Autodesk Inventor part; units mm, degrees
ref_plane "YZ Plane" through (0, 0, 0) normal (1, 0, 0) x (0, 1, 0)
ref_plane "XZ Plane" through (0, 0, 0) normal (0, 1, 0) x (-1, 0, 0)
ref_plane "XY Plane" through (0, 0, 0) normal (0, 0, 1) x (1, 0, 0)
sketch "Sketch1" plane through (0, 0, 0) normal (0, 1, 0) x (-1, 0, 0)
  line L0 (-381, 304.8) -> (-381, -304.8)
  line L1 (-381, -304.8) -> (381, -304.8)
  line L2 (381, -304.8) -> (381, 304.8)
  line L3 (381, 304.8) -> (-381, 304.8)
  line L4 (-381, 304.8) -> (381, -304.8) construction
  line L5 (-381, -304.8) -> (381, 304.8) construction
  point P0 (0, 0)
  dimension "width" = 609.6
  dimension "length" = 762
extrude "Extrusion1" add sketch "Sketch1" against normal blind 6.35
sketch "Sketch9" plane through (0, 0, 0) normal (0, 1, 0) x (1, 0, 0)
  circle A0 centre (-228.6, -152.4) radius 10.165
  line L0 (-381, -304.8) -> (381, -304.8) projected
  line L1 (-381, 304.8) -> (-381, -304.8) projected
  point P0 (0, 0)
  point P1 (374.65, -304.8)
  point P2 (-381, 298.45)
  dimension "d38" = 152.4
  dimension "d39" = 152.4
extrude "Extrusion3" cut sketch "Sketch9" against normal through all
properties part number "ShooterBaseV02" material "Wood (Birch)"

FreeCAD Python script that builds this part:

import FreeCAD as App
import Part
import Sketcher
from FreeCAD import Vector
Q = App.Units.Quantity


def add_polygon(sketch, points):
    """Adds a closed chain of lines whose ends are joined by coincident constraints."""
    first, n = sketch.GeometryCount, len(points)
    for a, b in zip(points, points[1:] + points[:1]):
        sketch.addGeometry(Part.LineSegment(App.Vector(*a, 0), App.Vector(*b, 0)), False)
    for i in range(n):
        sketch.addConstraint(Sketcher.Constraint("Coincident", first + i, 2, first + (i + 1) % n, 1))

doc = App.newDocument("Part")
body = doc.addObject("PartDesign::Body", "Body")

# Sketch on XZ plane
sketch1 = body.newObject("Sketcher::SketchObject", "Sketch")
sketch1.AttachmentSupport = (doc.getObject("XZ_Plane"), [""])
sketch1.MapMode = "FlatFace"
add_polygon(sketch1, [(-381, 304.8), (381, 304.8), (381, -304.8), (-381, -304.8)])  # lines 0-3
sketch1.addConstraint(Sketcher.Constraint("Horizontal", 0))
sketch1.addConstraint(Sketcher.Constraint("Vertical", 1))
sketch1.addConstraint(Sketcher.Constraint("Horizontal", 2))
sketch1.addConstraint(Sketcher.Constraint("Vertical", 3))
sketch1.addConstraint(Sketcher.Constraint("Symmetric", 0, 2, 2, 2, -1, 1))
sketch1.addConstraint(Sketcher.Constraint("DistanceX", 0, 1, 0, 2, Q("30 in")))
sketch1.addConstraint(Sketcher.Constraint("DistanceY", 1, 2, 1, 1, Q("24 in")))
pad1 = body.newObject("PartDesign::Pad", "Pad")
pad1.Profile = sketch1
pad1.Length = Q("0.25 in")

# Sketch on XZ plane
sketch2 = body.newObject("Sketcher::SketchObject", "Sketch001")
sketch2.AttachmentSupport = (doc.getObject("XZ_Plane"), [""])
sketch2.MapMode = "FlatFace"
sketch2.addGeometry(Part.Circle(Vector(-228.6, 152.4, 0), Vector(0, 0, 1), 10.165), False)
sketch2.addConstraint(Sketcher.Constraint("DistanceY", -1, 1, 0, 3, Q("6 in")))
sketch2.addConstraint(Sketcher.Constraint("DistanceX", 0, 3, -1, 1, Q("9 in")))
sketch2.addConstraint(Sketcher.Constraint("Diameter", 0, Q("0.8004 in")))
pocket1 = body.newObject("PartDesign::Pocket", "Pocket")
pocket1.Profile = sketch2
pocket1.Type = "ThroughAll"
pocket1.Reversed = True

doc.recompute()
